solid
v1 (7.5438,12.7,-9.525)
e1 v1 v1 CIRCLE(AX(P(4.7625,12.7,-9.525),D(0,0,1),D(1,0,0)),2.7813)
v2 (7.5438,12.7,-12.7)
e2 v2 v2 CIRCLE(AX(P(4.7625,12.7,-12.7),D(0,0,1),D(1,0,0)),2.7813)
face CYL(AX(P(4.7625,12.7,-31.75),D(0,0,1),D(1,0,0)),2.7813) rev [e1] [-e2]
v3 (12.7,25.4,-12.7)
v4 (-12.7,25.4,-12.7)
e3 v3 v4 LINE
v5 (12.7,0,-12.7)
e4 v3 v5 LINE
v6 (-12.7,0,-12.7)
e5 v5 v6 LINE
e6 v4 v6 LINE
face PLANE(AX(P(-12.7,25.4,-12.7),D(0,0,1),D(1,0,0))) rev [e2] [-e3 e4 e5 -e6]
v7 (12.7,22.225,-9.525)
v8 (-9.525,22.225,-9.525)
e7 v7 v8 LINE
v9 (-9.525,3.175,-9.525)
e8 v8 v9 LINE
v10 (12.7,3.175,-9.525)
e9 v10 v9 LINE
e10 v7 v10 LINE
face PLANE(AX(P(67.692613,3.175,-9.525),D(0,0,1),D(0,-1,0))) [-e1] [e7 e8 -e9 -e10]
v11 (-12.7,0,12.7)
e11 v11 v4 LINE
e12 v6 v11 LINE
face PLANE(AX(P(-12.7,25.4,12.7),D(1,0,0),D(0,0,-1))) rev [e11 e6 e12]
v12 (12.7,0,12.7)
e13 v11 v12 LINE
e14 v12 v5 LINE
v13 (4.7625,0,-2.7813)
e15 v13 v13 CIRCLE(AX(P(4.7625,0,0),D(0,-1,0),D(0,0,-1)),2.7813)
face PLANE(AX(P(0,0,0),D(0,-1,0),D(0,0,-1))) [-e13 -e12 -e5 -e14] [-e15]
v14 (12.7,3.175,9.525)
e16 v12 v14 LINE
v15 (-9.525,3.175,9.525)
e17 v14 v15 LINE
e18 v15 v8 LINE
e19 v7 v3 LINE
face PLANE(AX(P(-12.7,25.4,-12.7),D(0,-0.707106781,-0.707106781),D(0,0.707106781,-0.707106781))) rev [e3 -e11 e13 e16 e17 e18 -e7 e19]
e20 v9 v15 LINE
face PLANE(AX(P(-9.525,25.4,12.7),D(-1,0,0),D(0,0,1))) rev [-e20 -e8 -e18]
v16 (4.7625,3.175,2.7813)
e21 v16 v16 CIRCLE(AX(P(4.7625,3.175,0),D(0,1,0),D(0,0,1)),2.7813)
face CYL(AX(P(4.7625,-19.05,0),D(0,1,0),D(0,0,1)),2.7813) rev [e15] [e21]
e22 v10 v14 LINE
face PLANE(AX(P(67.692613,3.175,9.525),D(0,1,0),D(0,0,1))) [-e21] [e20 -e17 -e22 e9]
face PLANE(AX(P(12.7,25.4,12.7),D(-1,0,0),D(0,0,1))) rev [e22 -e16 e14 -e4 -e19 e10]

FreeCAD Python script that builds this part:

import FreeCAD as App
import Part
import Sketcher

V = App.Vector
Q = App.Units.Quantity

doc = App.newDocument("Part")
body = doc.addObject("PartDesign::Body", "Body")

# Sketch on XZ plane
sketch1 = body.newObject("Sketcher::SketchObject", "Sketch")
sketch1.AttachmentSupport = (doc.getObject("XZ_Plane"), [""])
sketch1.MapMode = "FlatFace"
sketch1.addGeometry(Part.LineSegment(V(-13, -13, 0), V(-13, 13, 0)), False)
sketch1.addGeometry(Part.LineSegment(V(-13, 13, 0), V(13, 13, 0)), False)
sketch1.addGeometry(Part.LineSegment(V(13, 13, 0), V(13, -13, 0)), False)
sketch1.addGeometry(Part.LineSegment(V(13, -13, 0), V(-13, -13, 0)), False)
sketch1.addConstraint(Sketcher.Constraint("Coincident", 0, 2, 1, 1))
sketch1.addConstraint(Sketcher.Constraint("Coincident", 1, 2, 2, 1))
sketch1.addConstraint(Sketcher.Constraint("Coincident", 2, 2, 3, 1))
sketch1.addConstraint(Sketcher.Constraint("Coincident", 3, 2, 0, 1))
sketch1.addConstraint(Sketcher.Constraint("Vertical", 0))
sketch1.addConstraint(Sketcher.Constraint("Horizontal", 1))
sketch1.addConstraint(Sketcher.Constraint("Vertical", 2))
sketch1.addConstraint(Sketcher.Constraint("Horizontal", 3))
sketch1.addConstraint(Sketcher.Constraint("Symmetric", 0, 2, 2, 2, -1, 1))
sketch1.addConstraint(Sketcher.Constraint("Equal", 3, 0))
sketch1.addConstraint(Sketcher.Constraint("DistanceX", 1, 1, 1, 2, Q("1 in")))
pad1 = body.newObject("PartDesign::Pad", "Pad")
pad1.Profile = sketch1
pad1.Length = Q("1 in")
pad1.Reversed = True

# Sketch on YZ plane
sketch2 = body.newObject("Sketcher::SketchObject", "Sketch001")
sketch2.AttachmentSupport = (doc.getObject("YZ_Plane"), [""])
sketch2.MapMode = "FlatFace"
sketch2.AttachmentOffset = App.Placement(V(0, 0, 0.5 * 25.4), App.Rotation())
sketch2.addGeometry(Part.LineSegment(V(25, -13, 0), V(25, 13, 0)), False)
sketch2.addGeometry(Part.LineSegment(V(25, 13, 0), V(0, 13, 0)), False)
sketch2.addGeometry(Part.LineSegment(V(0, 13, 0), V(25, -13, 0)), False)
sketch2.addConstraint(Sketcher.Constraint("Coincident", 0, 2, 1, 1))
sketch2.addConstraint(Sketcher.Constraint("Coincident", 1, 2, 2, 1))
sketch2.addConstraint(Sketcher.Constraint("Coincident", 2, 2, 0, 1))
sketch2.addConstraint(Sketcher.Constraint("Vertical", 0))
sketch2.addConstraint(Sketcher.Constraint("Horizontal", 1))
sketch2.addConstraint(Sketcher.Constraint("PointOnObject", 1, 2, -2))
sketch2.addConstraint(Sketcher.Constraint("Equal", 1, 0))
sketch2.addConstraint(Sketcher.Constraint("DistanceX", 1, 2, 1, 1, Q("1 in")))
sketch2.addConstraint(Sketcher.Constraint("DistanceY", -1, 1, 0, 2, Q("0.5 in")))
pocket1 = body.newObject("PartDesign::Pocket", "Pocket")
pocket1.Profile = sketch2
pocket1.Length = Q("1 in")

# Sketch on YZ plane
sketch3 = body.newObject("Sketcher::SketchObject", "Sketch002")
sketch3.AttachmentSupport = (doc.getObject("YZ_Plane"), [""])
sketch3.MapMode = "FlatFace"
sketch3.AttachmentOffset = App.Placement(V(0, 0, 0.5 * 25.4), App.Rotation())
sketch3.addGeometry(Part.LineSegment(V(3, 82, 0), V(3, -10, 0)), False)
sketch3.addGeometry(Part.LineSegment(V(3, -10, 0), V(95, -10, 0)), False)
sketch3.addGeometry(Part.LineSegment(V(95, -10, 0), V(198, 94, 0)), False)
sketch3.addGeometry(Part.LineSegment(V(198, 94, 0), V(106, 185, 0)), False)
sketch3.addGeometry(Part.LineSegment(V(106, 185, 0), V(3, 82, 0)), False)
sketch3.addConstraint(Sketcher.Constraint("Coincident", 0, 2, 1, 1))
sketch3.addConstraint(Sketcher.Constraint("Coincident", 1, 2, 2, 1))
sketch3.addConstraint(Sketcher.Constraint("Coincident", 2, 2, 3, 1))
sketch3.addConstraint(Sketcher.Constraint("Coincident", 3, 2, 4, 1))
sketch3.addConstraint(Sketcher.Constraint("Coincident", 4, 2, 0, 1))
sketch3.addConstraint(Sketcher.Constraint("Vertical", 0))
sketch3.addConstraint(Sketcher.Constraint("Horizontal", 1))
sketch3.addConstraint(Sketcher.Constraint("Perpendicular", 2, 3))
sketch3.addConstraint(Sketcher.Constraint("Perpendicular", 3, 4))
sketch3.addConstraint(Sketcher.Constraint("Equal", 1, 0))
sketch3.addConstraint(Sketcher.Constraint("Equal", 2, 4))
sketch3.addConstraint(Sketcher.Constraint("DistanceX", -1, 1, 0, 2, Q("0.125 in")))
sketch3.addConstraint(Sketcher.Constraint("DistanceY", 0, 2, -1, 1, Q("0.375 in")))
sketch3.addConstraint(Sketcher.Constraint("DistanceX", 1, 1, 1, 2, Q("91.911793 mm")))
sketch3.addConstraint(Sketcher.Constraint("DistanceX", -1, 1, 2, 2, Q("198.128928 mm")))
pocket2 = body.newObject("PartDesign::Pocket", "Pocket001")
pocket2.Profile = sketch3
pocket2.Type = "TwoLengths"
pocket2.Length = 39.1
pocket2.Length2 = Q("0.875 in")
pocket2.Reversed = True

# Sketch on XY plane
sketch4 = body.newObject("Sketcher::SketchObject", "Sketch003")
sketch4.AttachmentSupport = (doc.getObject("XY_Plane"), [""])
sketch4.MapMode = "FlatFace"
sketch4.AttachmentOffset = App.Placement(V(0, 0, -0.375 * 25.4), App.Rotation())
sketch4.addGeometry(Part.Circle(V(4.8, 12.7, 0), V(0, 0, 1), 2.8), False)
sketch4.addConstraint(Sketcher.Constraint("Diameter", 0, Q("0.219 in")))
sketch4.addConstraint(Sketcher.Constraint("DistanceY", -1, 1, 0, 3, Q("0.5 in")))
sketch4.addConstraint(Sketcher.Constraint("DistanceX", -1, 1, 0, 3, Q("0.1875 in")))
pocket3 = body.newObject("PartDesign::Pocket", "Pocket002")
pocket3.Profile = sketch4
pocket3.Length = Q("0.875 in")

# Sketch on XZ plane
sketch5 = body.newObject("Sketcher::SketchObject", "Sketch004")
sketch5.AttachmentSupport = (doc.getObject("XZ_Plane"), [""])
sketch5.MapMode = "FlatFace"
sketch5.AttachmentOffset = App.Placement(V(0, 0, -0.125 * 25.4), App.Rotation())
sketch5.addGeometry(Part.Circle(V(4.8, 0, 0), V(0, 0, 1), 2.8), False)
sketch5.addConstraint(Sketcher.Constraint("PointOnObject", 0, 3, -1))
sketch5.addConstraint(Sketcher.Constraint("Diameter", 0, Q("0.219 in")))
sketch5.addConstraint(Sketcher.Constraint("DistanceX", -1, 1, 0, 3, Q("0.1875 in")))
pocket4 = body.newObject("PartDesign::Pocket", "Pocket003")
pocket4.Profile = sketch5
pocket4.Length = Q("0.875 in")
pocket4.Reversed = True

doc.recompute()
